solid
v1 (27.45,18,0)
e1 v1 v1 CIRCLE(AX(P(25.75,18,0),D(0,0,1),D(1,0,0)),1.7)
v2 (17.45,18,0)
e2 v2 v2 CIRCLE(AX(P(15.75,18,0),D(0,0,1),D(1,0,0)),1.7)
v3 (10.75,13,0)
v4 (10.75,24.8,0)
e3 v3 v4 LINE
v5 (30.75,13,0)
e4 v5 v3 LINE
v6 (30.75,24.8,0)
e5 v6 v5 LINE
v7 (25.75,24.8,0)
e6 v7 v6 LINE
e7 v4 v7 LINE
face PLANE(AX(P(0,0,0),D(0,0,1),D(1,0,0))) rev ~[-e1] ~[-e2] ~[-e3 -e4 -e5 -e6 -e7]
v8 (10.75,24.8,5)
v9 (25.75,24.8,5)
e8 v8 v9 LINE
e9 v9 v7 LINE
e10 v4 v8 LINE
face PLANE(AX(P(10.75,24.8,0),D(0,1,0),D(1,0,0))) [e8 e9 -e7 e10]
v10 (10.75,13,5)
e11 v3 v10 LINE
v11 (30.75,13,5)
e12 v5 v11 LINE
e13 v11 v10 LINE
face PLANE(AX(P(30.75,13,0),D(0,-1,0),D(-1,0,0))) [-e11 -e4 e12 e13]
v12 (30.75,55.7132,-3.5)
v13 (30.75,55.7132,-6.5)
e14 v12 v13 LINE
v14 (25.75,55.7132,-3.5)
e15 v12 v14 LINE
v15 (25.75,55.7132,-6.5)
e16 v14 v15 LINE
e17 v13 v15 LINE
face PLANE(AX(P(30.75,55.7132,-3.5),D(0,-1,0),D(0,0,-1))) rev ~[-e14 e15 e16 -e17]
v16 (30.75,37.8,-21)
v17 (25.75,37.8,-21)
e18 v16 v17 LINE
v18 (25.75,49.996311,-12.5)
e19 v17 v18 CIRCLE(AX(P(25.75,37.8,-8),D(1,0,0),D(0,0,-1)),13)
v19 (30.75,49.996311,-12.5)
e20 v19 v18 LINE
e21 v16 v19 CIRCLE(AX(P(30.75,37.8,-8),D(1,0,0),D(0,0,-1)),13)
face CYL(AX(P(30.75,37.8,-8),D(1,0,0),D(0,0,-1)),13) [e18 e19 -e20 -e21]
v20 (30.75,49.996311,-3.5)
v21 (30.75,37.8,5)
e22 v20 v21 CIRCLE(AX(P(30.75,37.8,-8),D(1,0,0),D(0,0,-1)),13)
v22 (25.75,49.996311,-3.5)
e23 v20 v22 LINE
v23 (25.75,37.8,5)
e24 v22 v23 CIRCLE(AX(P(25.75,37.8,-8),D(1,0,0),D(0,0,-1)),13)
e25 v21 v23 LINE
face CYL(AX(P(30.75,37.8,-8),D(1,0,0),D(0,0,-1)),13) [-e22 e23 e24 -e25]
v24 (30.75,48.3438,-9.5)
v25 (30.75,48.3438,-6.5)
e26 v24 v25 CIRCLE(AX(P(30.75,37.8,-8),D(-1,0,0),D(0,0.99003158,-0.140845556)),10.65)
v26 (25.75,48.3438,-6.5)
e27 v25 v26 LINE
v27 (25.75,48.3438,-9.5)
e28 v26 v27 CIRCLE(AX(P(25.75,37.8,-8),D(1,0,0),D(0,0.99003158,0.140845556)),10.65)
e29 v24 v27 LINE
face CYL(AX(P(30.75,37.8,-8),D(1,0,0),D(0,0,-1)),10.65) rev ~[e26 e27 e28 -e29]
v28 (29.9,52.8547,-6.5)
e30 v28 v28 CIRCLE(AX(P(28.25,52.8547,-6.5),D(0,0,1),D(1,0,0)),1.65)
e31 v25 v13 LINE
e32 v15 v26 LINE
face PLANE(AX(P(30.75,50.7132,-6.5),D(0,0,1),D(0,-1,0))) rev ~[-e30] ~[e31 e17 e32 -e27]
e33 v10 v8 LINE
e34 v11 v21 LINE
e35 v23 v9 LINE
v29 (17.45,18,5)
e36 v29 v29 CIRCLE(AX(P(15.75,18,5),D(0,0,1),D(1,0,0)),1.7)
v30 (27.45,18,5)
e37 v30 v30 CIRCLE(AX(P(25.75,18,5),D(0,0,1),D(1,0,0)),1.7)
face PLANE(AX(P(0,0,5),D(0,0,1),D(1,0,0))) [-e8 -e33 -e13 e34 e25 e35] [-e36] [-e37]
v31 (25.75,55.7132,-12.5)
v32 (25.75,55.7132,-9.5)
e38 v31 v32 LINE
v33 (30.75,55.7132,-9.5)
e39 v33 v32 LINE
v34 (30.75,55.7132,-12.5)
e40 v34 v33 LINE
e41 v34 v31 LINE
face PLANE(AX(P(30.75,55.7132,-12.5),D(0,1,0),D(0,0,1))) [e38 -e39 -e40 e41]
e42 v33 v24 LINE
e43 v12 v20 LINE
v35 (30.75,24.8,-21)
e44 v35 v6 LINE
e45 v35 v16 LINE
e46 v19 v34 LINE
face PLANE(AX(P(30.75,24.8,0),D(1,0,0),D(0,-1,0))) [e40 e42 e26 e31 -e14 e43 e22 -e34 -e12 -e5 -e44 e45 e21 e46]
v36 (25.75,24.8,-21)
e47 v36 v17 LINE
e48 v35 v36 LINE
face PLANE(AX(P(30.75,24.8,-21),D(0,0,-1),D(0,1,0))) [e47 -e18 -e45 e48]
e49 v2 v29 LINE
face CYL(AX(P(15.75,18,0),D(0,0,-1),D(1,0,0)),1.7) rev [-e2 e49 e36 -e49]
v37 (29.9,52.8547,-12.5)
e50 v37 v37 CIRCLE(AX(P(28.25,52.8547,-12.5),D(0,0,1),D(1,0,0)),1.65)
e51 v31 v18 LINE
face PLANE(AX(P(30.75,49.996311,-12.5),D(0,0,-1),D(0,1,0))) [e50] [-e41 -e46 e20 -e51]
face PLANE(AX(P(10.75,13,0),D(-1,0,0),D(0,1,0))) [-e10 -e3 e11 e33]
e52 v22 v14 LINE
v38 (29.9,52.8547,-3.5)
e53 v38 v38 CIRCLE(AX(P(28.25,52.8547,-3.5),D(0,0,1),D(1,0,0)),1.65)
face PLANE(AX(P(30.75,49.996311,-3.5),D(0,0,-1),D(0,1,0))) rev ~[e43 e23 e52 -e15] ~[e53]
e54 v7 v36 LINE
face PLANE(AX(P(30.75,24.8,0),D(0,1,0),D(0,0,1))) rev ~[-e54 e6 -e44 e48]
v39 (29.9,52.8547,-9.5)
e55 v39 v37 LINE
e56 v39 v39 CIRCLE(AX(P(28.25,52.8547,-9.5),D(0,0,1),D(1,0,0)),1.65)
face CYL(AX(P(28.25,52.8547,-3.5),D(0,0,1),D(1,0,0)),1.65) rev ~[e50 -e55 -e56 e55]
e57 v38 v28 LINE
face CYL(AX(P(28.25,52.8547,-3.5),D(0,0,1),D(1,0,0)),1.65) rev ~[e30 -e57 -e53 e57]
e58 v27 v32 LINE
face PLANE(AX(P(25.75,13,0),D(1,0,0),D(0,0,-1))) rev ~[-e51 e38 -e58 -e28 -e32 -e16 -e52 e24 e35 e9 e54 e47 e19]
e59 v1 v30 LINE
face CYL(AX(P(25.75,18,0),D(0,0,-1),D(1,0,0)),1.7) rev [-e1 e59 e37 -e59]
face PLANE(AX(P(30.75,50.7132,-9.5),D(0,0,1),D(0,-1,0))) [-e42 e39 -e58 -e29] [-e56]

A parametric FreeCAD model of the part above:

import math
import FreeCAD as App
import Part
import Sketcher

V = App.Vector


def add_polygon(sketch, points):
    """Adds a closed chain of lines whose ends are joined by coincident constraints."""
    first, n = sketch.GeometryCount, len(points)
    for a, b in zip(points, points[1:] + points[:1]):
        sketch.addGeometry(Part.LineSegment(App.Vector(*a, 0), App.Vector(*b, 0)), False)
    for i in range(n):
        sketch.addConstraint(Sketcher.Constraint("Coincident", first + i, 2, first + (i + 1) % n, 1))

doc = App.newDocument("Part")
body = doc.addObject("PartDesign::Body", "Body")

sketch1 = doc.addObject("Sketcher::SketchObject", "Sketch")
body.addObject(sketch1)
sketch1.AttachmentSupport = (doc.XY_Plane, [""])
sketch1.MapMode = "FlatFace"
add_polygon(sketch1, [(30.75, 24.8), (10.75, 24.8), (10.75, 13), (30.75, 13)])
sketch1.addGeometry(Part.Circle(V(15.75, 18, 0), V(0, 0, 1), 1.7), False)
sketch1.addGeometry(Part.Circle(V(25.75, 18, 0), V(0, 0, 1), 1.7), False)
sketch1.addConstraint([
    Sketcher.Constraint("Horizontal", 0),
    Sketcher.Constraint("Vertical", 1),
    Sketcher.Constraint("Horizontal", 2),
    Sketcher.Constraint("Vertical", 3),
    Sketcher.Constraint("Equal", 4, 5),
    Sketcher.Constraint("Horizontal", 4, 3, 5, 3),
    Sketcher.Constraint("DistanceX", 0, 2, 4, 3, 5.0),
    Sketcher.Constraint("DistanceY", 1, 2, 4, 3, 5.0),
    Sketcher.Constraint("DistanceX", 5, 3, 2, 2, 5.0),
    Sketcher.Constraint("Diameter", 4, 3.4),
    Sketcher.Constraint("DistanceX", 0, 2, 0, 1, 20.0),
    Sketcher.Constraint("DistanceY", 1, 2, 1, 1, 11.8),
    Sketcher.Constraint("DistanceY", -1, 1, 4, 3, 18.0),
    Sketcher.Constraint("DistanceX", -1, 1, 4, 3, 15.75),
])
pad1 = doc.addObject("PartDesign::Pad", "Pad")
body.addObject(pad1)
pad1.Profile = sketch1
pad1.Length = 5

sketch2 = doc.addObject("Sketcher::SketchObject", "Sketch001")
body.addObject(sketch2)
sketch2.AttachmentSupport = (doc.YZ_Plane, [""])
sketch2.MapMode = "FlatFace"
sketch2.AttachmentOffset = App.Placement(V(0, 0, 30.75), App.Rotation())
sketch2.addGeometry([
    Part.LineSegment(V(24.8, 5, 0), V(24.8, -21, 0)),
    Part.LineSegment(V(24.8, -21, 0), V(37.8, -21, 0)),
    Part.ArcOfCircle(Part.Circle(V(37.8, -8, 0), V(0, 0, 1), 13), math.radians(-90), math.radians(-20.252247)),
    Part.LineSegment(V(49.996311, -12.5, 0), V(55.7132, -12.5, 0)),
    Part.LineSegment(V(55.7132, -12.5, 0), V(55.7132, -9.5, 0)),
    Part.LineSegment(V(55.7132, -9.5, 0), V(48.3438, -9.5, 0)),
    Part.ArcOfCircle(Part.Circle(V(37.8, -8, 0), V(0, 0, 1), 10.65), math.radians(8.096778), math.radians(351.903222)),
    Part.LineSegment(V(48.3438, -6.5, 0), V(55.7132, -6.5, 0)),
    Part.LineSegment(V(55.7132, -6.5, 0), V(55.7132, -3.5, 0)),
    Part.LineSegment(V(55.7132, -3.5, 0), V(49.996311, -3.5, 0)),
    Part.ArcOfCircle(Part.Circle(V(37.8, -8, 0), V(0, 0, 1), 13), math.radians(20.252247), math.radians(90)),
    Part.LineSegment(V(37.8, 5, 0), V(24.8, 5, 0)),
], False)
sketch2.addConstraint([
    Sketcher.Constraint("Coincident", 0, 2, 1, 1),
    Sketcher.Constraint("Tangent", 1, 2, 2, 1),
    Sketcher.Constraint("Coincident", 2, 2, 3, 1),
    Sketcher.Constraint("Coincident", 3, 2, 4, 1),
    Sketcher.Constraint("Coincident", 4, 2, 5, 1),
    Sketcher.Constraint("Coincident", 5, 2, 6, 2),
    Sketcher.Constraint("Coincident", 6, 1, 7, 1),
    Sketcher.Constraint("Coincident", 7, 2, 8, 1),
    Sketcher.Constraint("Coincident", 8, 2, 9, 1),
    Sketcher.Constraint("Coincident", 9, 2, 10, 1),
    Sketcher.Constraint("Tangent", 10, 2, 11, 1),
    Sketcher.Constraint("Coincident", 11, 2, 0, 1),
    Sketcher.Constraint("Vertical", 0),
    Sketcher.Constraint("Horizontal", 1),
    Sketcher.Constraint("Horizontal", 3),
    Sketcher.Constraint("Vertical", 4),
    Sketcher.Constraint("Horizontal", 5),
    Sketcher.Constraint("Horizontal", 7),
    Sketcher.Constraint("Vertical", 8),
    Sketcher.Constraint("Horizontal", 9),
    Sketcher.Constraint("Horizontal", 11),
    Sketcher.Constraint("Coincident", 6, 3, 2, 3),
    Sketcher.Constraint("Coincident", 10, 3, 2, 3),
    Sketcher.Constraint("Equal", 2, 10),
    Sketcher.Constraint("Vertical", 5, 2, 6, 1),
    Sketcher.Constraint("Vertical", 4, 2, 7, 2),
    Sketcher.Constraint("Vertical", 2, 2, 9, 2),
    Sketcher.Constraint("Radius", 2, 13.0),
    Sketcher.Constraint("DistanceY", 4, 1, 4, 2, 3.0),
    Sketcher.Constraint("Radius", 6, 10.65),
    Sketcher.Constraint("DistanceY", -1, 1, 10, 2, 5.0),
    Sketcher.Constraint("DistanceY", 5, 2, 6, 1, 3.0),
    Sketcher.Constraint("DistanceX", 1, 1, 1, 2, 13.0),
    Sketcher.Constraint("DistanceX", -1, 1, 2, 3, 37.8),
    Sketcher.Constraint("DistanceX", 3, 1, 3, 2, 5.717),
])
pad2 = doc.addObject("PartDesign::Pad", "Pad001")
body.addObject(pad2)
pad2.Profile = sketch2
pad2.Length = 5
pad2.Reversed = True

sketch3 = doc.addObject("Sketcher::SketchObject", "Sketch002")
body.addObject(sketch3)
sketch3.AttachmentSupport = (doc.XY_Plane, [""])
sketch3.MapMode = "FlatFace"
sketch3.AttachmentOffset = App.Placement(V(0, 0, -3.5), App.Rotation())
sketch3.addGeometry(Part.Circle(V(28.25, 52.8547, 0), V(0, 0, 1), 1.65), False)
sketch3.addConstraint([
    Sketcher.Constraint("Diameter", 0, 3.3),
    Sketcher.Constraint("DistanceX", -1, 1, 0, 3, 28.25),
    Sketcher.Constraint("DistanceY", -1, 1, 0, 3, 52.8547),
])
pocket1 = doc.addObject("PartDesign::Pocket", "Pocket")
body.addObject(pocket1)
pocket1.Profile = sketch3
pocket1.Type = "ThroughAll"

doc.recompute()
